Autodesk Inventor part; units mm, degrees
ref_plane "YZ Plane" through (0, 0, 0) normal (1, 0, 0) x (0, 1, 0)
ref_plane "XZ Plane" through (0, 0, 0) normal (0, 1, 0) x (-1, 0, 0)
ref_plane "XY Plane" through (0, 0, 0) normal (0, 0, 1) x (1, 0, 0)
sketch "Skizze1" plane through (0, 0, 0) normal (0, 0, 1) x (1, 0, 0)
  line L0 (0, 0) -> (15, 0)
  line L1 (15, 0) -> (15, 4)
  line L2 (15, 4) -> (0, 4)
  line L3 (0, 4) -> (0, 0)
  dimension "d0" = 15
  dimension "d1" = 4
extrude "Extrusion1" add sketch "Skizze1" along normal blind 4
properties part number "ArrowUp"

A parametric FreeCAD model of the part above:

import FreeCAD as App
import Part
import Sketcher

V = App.Vector


def add_polygon(sketch, points):
    """Adds a closed chain of lines whose ends are joined by coincident constraints."""
    first, n = sketch.GeometryCount, len(points)
    for a, b in zip(points, points[1:] + points[:1]):
        sketch.addGeometry(Part.LineSegment(App.Vector(*a, 0), App.Vector(*b, 0)), False)
    for i in range(n):
        sketch.addConstraint(Sketcher.Constraint("Coincident", first + i, 2, first + (i + 1) % n, 1))

doc = App.newDocument("Part")
params = doc.addObject("Spreadsheet::Sheet", "Params")
for row, (alias, value) in enumerate([
    ("sketch1_width", "15 mm"),
    ("sketch1_height", "4 mm"),
    ("pad1_length", "4 mm"),
], start=1):
    params.set(f"A{row}", alias)
    params.set(f"B{row}", "=" + value)
    params.setAlias(f"B{row}", alias)

body = doc.addObject("PartDesign::Body", "Body")

# Sketch on XY plane
sketch1 = body.newObject("Sketcher::SketchObject", "Sketch")
sketch1.AttachmentSupport = (doc.getObject("XY_Plane"), [""])
sketch1.MapMode = "FlatFace"
add_polygon(sketch1, [(0, 4), (0, 0), (15, 0), (15, 4)])  # lines 0-3
sketch1.addConstraint([
    Sketcher.Constraint("Vertical", 0),
    Sketcher.Constraint("Horizontal", 1),
    Sketcher.Constraint("Vertical", 2),
    Sketcher.Constraint("Horizontal", 3),
    Sketcher.Constraint("Coincident", 0, 2, -1, 1),
    Sketcher.Constraint("DistanceX", 1, 1, 1, 2, 15.0),
    Sketcher.Constraint("DistanceY", 0, 2, 0, 1, 4.0),
])
sketch1.setExpression("Constraints[9]", "Params.sketch1_width")
sketch1.setExpression("Constraints[10]", "Params.sketch1_height")
pad1 = body.newObject("PartDesign::Pad", "Pad")
pad1.Profile = sketch1
pad1.setExpression("Length", "Params.pad1_length")

doc.recompute()
